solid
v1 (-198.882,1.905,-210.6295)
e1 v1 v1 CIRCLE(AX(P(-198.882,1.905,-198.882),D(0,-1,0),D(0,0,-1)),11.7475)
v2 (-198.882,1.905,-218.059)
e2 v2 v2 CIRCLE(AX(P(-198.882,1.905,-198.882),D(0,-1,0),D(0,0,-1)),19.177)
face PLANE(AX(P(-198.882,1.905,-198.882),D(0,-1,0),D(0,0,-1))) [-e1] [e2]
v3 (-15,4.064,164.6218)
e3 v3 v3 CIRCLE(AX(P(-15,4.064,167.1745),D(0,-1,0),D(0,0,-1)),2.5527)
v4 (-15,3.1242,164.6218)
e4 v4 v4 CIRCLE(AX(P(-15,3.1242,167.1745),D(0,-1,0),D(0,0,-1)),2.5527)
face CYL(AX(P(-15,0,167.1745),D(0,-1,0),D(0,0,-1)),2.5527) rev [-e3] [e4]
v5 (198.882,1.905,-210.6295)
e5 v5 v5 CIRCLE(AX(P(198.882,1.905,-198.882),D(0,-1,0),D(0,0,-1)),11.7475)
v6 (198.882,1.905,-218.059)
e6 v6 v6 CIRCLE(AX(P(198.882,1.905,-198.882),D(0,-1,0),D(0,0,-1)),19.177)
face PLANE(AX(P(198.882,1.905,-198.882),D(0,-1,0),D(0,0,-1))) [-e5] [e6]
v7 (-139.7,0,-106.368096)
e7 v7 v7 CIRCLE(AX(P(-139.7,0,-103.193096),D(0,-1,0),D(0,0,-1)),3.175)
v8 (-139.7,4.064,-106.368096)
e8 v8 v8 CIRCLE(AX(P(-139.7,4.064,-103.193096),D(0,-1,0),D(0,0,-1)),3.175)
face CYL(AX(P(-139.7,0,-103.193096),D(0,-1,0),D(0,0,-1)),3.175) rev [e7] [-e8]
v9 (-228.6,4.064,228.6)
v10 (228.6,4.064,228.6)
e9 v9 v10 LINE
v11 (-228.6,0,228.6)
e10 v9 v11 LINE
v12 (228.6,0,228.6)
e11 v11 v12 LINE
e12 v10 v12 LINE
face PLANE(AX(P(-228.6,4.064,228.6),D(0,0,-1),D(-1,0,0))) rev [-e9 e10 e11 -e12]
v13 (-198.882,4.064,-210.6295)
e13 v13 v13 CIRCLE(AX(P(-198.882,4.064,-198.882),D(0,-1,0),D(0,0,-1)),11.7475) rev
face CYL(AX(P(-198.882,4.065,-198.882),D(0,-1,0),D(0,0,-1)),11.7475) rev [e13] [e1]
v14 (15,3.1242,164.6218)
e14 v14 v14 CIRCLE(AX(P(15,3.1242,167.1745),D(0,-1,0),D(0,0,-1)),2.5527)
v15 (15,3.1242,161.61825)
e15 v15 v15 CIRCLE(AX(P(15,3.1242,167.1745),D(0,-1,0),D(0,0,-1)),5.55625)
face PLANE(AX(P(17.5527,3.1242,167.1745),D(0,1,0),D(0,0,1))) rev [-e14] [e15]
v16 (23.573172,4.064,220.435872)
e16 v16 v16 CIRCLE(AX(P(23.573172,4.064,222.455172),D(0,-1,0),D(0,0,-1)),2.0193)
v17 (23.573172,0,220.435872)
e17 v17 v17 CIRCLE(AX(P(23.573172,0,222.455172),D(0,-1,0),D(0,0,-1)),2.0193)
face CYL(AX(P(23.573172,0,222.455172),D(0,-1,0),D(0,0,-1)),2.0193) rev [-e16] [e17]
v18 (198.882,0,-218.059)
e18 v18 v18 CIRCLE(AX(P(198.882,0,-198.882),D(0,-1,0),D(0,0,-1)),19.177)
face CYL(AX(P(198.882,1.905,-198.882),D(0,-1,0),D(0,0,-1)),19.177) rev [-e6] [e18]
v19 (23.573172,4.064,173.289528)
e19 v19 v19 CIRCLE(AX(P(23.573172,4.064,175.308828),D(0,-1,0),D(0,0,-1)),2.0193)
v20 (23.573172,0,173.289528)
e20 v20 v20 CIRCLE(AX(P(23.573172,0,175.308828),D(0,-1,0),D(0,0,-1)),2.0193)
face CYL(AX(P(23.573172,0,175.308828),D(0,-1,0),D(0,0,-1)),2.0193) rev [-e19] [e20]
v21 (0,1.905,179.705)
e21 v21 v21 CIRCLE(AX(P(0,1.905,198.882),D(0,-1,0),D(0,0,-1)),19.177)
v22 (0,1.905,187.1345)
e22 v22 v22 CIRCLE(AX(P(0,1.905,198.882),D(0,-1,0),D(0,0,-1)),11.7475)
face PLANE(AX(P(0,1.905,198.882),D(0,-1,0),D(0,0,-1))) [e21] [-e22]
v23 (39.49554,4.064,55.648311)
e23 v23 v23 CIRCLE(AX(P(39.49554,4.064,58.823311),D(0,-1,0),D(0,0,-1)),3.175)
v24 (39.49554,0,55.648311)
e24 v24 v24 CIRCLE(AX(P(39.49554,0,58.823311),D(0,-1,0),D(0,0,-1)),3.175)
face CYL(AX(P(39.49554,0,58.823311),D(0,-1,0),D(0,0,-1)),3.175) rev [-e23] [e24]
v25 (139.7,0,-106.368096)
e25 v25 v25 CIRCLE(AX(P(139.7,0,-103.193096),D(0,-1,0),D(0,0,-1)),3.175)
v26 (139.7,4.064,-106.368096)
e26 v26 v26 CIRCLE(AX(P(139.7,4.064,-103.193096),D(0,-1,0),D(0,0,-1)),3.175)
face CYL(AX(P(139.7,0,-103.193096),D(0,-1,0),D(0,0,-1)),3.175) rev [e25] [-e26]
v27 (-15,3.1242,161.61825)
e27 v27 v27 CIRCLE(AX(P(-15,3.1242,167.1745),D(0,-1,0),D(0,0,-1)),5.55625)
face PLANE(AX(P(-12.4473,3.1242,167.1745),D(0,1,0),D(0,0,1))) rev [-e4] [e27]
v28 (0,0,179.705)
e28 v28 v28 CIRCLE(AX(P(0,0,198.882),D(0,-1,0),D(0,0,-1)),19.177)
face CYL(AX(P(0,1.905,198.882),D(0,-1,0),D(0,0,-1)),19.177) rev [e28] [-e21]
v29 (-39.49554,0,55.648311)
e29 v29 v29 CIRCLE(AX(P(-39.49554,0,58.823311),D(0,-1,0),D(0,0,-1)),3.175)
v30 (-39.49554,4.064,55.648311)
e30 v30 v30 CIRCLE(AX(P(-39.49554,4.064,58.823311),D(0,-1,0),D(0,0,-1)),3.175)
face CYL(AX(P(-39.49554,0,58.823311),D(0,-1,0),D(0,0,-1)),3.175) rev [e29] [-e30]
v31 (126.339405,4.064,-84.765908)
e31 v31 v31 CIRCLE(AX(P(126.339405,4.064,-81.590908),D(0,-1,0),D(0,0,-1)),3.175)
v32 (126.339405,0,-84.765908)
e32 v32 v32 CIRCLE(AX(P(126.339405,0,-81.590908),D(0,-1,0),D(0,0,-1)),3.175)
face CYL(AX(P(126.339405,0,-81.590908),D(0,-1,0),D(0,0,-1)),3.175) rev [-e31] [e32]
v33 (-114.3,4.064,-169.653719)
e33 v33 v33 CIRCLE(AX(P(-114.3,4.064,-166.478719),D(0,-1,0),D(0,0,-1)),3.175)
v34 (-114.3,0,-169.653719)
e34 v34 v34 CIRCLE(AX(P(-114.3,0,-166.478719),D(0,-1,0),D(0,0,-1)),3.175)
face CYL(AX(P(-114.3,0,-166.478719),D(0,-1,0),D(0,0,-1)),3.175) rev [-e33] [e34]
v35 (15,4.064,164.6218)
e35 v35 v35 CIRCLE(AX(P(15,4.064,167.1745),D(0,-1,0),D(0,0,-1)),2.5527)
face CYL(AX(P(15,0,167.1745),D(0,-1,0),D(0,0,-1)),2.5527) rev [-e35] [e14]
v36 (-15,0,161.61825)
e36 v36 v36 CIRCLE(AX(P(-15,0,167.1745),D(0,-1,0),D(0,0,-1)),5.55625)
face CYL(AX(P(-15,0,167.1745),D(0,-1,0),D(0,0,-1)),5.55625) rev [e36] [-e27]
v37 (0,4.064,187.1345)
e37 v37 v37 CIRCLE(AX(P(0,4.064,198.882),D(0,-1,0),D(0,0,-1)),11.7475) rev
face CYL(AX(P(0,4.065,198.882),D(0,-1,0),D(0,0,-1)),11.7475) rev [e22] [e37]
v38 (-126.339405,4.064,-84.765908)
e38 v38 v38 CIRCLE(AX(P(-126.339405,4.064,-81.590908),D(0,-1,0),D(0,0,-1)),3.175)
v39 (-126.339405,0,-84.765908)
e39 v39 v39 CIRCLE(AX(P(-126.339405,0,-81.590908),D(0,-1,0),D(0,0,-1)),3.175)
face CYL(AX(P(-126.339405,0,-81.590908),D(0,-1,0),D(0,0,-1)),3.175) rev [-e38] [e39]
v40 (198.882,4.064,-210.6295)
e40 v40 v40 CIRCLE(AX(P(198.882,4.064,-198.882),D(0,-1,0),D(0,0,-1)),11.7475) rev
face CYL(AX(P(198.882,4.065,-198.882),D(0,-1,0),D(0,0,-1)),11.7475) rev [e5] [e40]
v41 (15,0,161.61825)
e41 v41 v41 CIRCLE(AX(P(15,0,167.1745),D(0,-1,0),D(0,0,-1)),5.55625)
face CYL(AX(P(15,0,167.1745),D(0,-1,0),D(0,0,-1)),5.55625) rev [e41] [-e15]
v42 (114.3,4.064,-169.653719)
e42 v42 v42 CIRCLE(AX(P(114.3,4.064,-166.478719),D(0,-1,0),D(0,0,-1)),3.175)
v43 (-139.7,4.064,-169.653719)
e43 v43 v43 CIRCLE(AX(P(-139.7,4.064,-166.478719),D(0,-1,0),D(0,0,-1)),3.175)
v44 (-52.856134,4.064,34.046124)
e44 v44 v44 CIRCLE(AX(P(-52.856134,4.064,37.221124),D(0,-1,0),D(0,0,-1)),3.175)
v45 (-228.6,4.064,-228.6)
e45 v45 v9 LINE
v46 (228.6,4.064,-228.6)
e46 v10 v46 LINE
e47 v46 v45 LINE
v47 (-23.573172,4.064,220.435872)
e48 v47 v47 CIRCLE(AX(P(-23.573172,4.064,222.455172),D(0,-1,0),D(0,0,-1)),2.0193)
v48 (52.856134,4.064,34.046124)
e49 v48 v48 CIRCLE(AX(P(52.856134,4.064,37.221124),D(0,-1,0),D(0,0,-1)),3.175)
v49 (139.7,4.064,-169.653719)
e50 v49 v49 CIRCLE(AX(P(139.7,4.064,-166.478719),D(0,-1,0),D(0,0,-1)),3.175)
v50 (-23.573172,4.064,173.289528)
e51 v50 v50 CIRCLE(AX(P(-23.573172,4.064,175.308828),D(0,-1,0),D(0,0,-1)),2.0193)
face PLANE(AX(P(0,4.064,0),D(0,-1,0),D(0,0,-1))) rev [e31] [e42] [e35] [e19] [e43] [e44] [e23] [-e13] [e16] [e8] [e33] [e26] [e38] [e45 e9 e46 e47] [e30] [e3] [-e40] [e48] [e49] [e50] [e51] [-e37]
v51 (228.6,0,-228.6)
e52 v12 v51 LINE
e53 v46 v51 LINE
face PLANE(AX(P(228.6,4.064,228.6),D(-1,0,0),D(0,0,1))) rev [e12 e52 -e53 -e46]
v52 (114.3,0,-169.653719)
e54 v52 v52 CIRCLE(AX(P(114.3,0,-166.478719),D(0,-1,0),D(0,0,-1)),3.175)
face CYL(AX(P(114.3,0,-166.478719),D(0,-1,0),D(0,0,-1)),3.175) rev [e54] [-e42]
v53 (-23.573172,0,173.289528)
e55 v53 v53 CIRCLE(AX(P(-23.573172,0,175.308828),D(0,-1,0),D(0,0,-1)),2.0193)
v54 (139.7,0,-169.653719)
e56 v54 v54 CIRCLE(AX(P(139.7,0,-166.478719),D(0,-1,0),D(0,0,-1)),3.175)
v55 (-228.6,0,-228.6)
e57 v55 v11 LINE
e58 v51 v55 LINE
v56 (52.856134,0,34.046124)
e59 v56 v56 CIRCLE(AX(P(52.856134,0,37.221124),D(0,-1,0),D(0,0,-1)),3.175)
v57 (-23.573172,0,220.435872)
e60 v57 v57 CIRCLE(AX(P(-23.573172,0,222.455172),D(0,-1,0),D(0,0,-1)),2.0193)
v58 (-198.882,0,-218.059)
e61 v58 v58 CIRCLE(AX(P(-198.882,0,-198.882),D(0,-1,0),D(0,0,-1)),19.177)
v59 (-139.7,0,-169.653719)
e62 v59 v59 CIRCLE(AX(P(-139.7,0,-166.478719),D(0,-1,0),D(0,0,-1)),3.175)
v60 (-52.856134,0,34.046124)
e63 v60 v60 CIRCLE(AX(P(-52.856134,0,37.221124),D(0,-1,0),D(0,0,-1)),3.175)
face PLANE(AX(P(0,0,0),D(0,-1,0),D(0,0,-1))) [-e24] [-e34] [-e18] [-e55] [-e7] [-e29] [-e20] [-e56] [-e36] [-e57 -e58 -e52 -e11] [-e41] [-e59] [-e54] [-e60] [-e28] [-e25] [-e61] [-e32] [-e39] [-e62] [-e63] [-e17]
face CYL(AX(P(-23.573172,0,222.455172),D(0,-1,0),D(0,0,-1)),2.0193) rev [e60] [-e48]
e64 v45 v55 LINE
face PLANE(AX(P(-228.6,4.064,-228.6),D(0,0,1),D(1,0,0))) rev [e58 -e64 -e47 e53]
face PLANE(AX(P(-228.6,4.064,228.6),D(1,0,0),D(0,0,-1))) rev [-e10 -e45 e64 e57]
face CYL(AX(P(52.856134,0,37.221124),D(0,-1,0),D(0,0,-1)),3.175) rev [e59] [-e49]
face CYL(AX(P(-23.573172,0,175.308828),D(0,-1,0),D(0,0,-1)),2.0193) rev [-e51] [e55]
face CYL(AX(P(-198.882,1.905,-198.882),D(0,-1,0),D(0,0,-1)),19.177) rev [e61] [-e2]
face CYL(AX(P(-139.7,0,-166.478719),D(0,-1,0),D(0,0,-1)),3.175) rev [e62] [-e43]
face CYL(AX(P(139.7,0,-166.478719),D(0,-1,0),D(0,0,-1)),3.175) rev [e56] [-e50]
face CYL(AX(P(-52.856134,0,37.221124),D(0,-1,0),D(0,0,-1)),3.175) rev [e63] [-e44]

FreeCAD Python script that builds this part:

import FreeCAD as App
import Part
import Sketcher
Q = App.Units.Quantity

doc = App.newDocument("Part")
body = doc.addObject("PartDesign::Body", "Body")

# Sketch on XZ plane
sketch1 = doc.addObject("Sketcher::SketchObject", "Sketch")
body.addObject(sketch1)
sketch1.AttachmentSupport = (doc.XZ_Plane, [""])
sketch1.MapMode = "FlatFace"
sketch1.addGeometry(Part.LineSegment(App.Vector(-228.6, -228.6, 0), App.Vector(-228.6, 228.6, 0)), False)
sketch1.addGeometry(Part.LineSegment(App.Vector(-228.6, 228.6, 0), App.Vector(228.6, 228.6, 0)), False)
sketch1.addGeometry(Part.LineSegment(App.Vector(228.6, 228.6, 0), App.Vector(228.6, -228.6, 0)), False)
sketch1.addGeometry(Part.LineSegment(App.Vector(228.6, -228.6, 0), App.Vector(-228.6, -228.6, 0)), False)
sketch1.addConstraint(Sketcher.Constraint("Coincident", 0, 2, 1, 1))
sketch1.addConstraint(Sketcher.Constraint("Coincident", 1, 2, 2, 1))
sketch1.addConstraint(Sketcher.Constraint("Coincident", 2, 2, 3, 1))
sketch1.addConstraint(Sketcher.Constraint("Coincident", 3, 2, 0, 1))
sketch1.addConstraint(Sketcher.Constraint("Vertical", 0))
sketch1.addConstraint(Sketcher.Constraint("Horizontal", 1))
sketch1.addConstraint(Sketcher.Constraint("Vertical", 2))
sketch1.addConstraint(Sketcher.Constraint("Horizontal", 3))
sketch1.addConstraint(Sketcher.Constraint("Symmetric", 0, 2, 2, 2, -1, 1))
sketch1.addConstraint(Sketcher.Constraint("Equal", 3, 0))
sketch1.addConstraint(Sketcher.Constraint("DistanceX", 1, 1, 1, 2, Q("18 in")))
pad1 = doc.addObject("PartDesign::Pad", "Pad")
body.addObject(pad1)
pad1.Profile = sketch1
pad1.Length = Q("0.16 in")
pad1.Reversed = True

# Sketch on XZ plane
sketch2 = doc.addObject("Sketcher::SketchObject", "Sketch001")
body.addObject(sketch2)
sketch2.AttachmentSupport = (doc.XZ_Plane, [""])
sketch2.MapMode = "FlatFace"
sketch2.addGeometry(Part.Circle(App.Vector(0, 198.882, 0), App.Vector(0, 0, 1), 19.177), False)
sketch2.addGeometry(Part.Circle(App.Vector(-198.882, -198.882, 0), App.Vector(0, 0, 1), 19.177), False)
sketch2.addGeometry(Part.Circle(App.Vector(198.882, -198.882, 0), App.Vector(0, 0, 1), 19.177), False)
sketch2.addConstraint(Sketcher.Constraint("Equal", 0, 1))
sketch2.addConstraint(Sketcher.Constraint("Equal", 1, 2))
sketch2.addConstraint(Sketcher.Constraint("Symmetric", 1, 3, 2, 3, -2))
sketch2.addConstraint(Sketcher.Constraint("PointOnObject", 0, 3, -2))
sketch2.addConstraint(Sketcher.Constraint("Diameter", 0, Q("1.51 in")))
sketch2.addConstraint(Sketcher.Constraint("DistanceY", -1, 1, 0, 3, Q("7.83 in")))
sketch2.addConstraint(Sketcher.Constraint("DistanceX", 1, 3, -1, 1, Q("7.83 in")))
sketch2.addConstraint(Sketcher.Constraint("DistanceY", 1, 3, -1, 1, Q("7.83 in")))
pocket1 = doc.addObject("PartDesign::Pocket", "Pocket")
body.addObject(pocket1)
pocket1.Profile = sketch2
pocket1.Length = Q("0.075 in")

# Sketch on XZ plane
sketch3 = doc.addObject("Sketcher::SketchObject", "Sketch002")
body.addObject(sketch3)
sketch3.AttachmentSupport = (doc.XZ_Plane, [""])
sketch3.MapMode = "FlatFace"
sketch3.AttachmentOffset = App.Placement(App.Vector(0, 0, -0.075 * 25.4), App.Rotation())
sketch3.addGeometry(Part.Circle(App.Vector(0, 198.882, 0), App.Vector(0, 0, 1), 11.7475), False)
sketch3.addConstraint(Sketcher.Constraint("PointOnObject", 0, 3, -2))
sketch3.addConstraint(Sketcher.Constraint("Diameter", 0, Q("0.925 in")))
sketch3.addConstraint(Sketcher.Constraint("DistanceY", -1, 1, 0, 3, Q("7.83 in")))
pocket2 = doc.addObject("PartDesign::Pocket", "Pocket001")
body.addObject(pocket2)
pocket2.Profile = sketch3
pocket2.Type = "UpToFirst"

# Sketch on XZ plane
sketch4 = doc.addObject("Sketcher::SketchObject", "Sketch003")
body.addObject(sketch4)
sketch4.AttachmentSupport = (doc.XZ_Plane, [""])
sketch4.MapMode = "FlatFace"
sketch4.AttachmentOffset = App.Placement(App.Vector(0, 0, -0.075 * 25.4), App.Rotation())
sketch4.addGeometry(Part.Circle(App.Vector(-198.882, -198.882, 0), App.Vector(0, 0, 1), 11.7475), False)
sketch4.addConstraint(Sketcher.Constraint("Diameter", 0, Q("0.925 in")))
sketch4.addConstraint(Sketcher.Constraint("DistanceX", 0, 3, -1, 1, Q("7.83 in")))
sketch4.addConstraint(Sketcher.Constraint("DistanceY", 0, 3, -1, 1, Q("7.83 in")))
pocket3 = doc.addObject("PartDesign::Pocket", "Pocket002")
body.addObject(pocket3)
pocket3.Profile = sketch4
pocket3.Type = "UpToFirst"

# Sketch on XZ plane
sketch5 = doc.addObject("Sketcher::SketchObject", "Sketch004")
body.addObject(sketch5)
sketch5.AttachmentSupport = (doc.XZ_Plane, [""])
sketch5.MapMode = "FlatFace"
sketch5.AttachmentOffset = App.Placement(App.Vector(0, 0, -0.075 * 25.4), App.Rotation())
sketch5.addGeometry(Part.Circle(App.Vector(198.882, -198.882, 0), App.Vector(0, 0, 1), 11.7475), False)
sketch5.addConstraint(Sketcher.Constraint("Diameter", 0, Q("0.925 in")))
sketch5.addConstraint(Sketcher.Constraint("DistanceX", -1, 1, 0, 3, Q("7.83 in")))
sketch5.addConstraint(Sketcher.Constraint("DistanceY", 0, 3, -1, 1, Q("7.83 in")))
pocket4 = doc.addObject("PartDesign::Pocket", "Pocket003")
body.addObject(pocket4)
pocket4.Profile = sketch5
pocket4.Type = "UpToFirst"

# Sketch on XZ plane
sketch6 = doc.addObject("Sketcher::SketchObject", "Sketch005")
body.addObject(sketch6)
sketch6.AttachmentSupport = (doc.XZ_Plane, [""])
sketch6.MapMode = "FlatFace"
sketch6.addGeometry(Part.Circle(App.Vector(-23.573172, 222.455172, 0), App.Vector(0, 0, 1), 2.0193), False)
sketch6.addGeometry(Part.Circle(App.Vector(23.573172, 222.455172, 0), App.Vector(0, 0, 1), 2.0193), False)
sketch6.addConstraint(Sketcher.Constraint("Equal", 0, 1))
sketch6.addConstraint(Sketcher.Constraint("Symmetric", 0, 3, 1, 3, -2))
sketch6.addConstraint(Sketcher.Constraint("Diameter", 0, Q("0.159 in")))
sketch6.addConstraint(Sketcher.Constraint("DistanceX", 0, 3, -1, 1, Q("23.573172 mm")))
sketch6.addConstraint(Sketcher.Constraint("DistanceY", -1, 1, 0, 3, Q("222.455172 mm")))
doc.recompute()
hole = doc.addObject("PartDesign::Hole", "Hole")
body.addObject(hole)
hole.Profile = sketch6
hole.ThreadType = "None"
hole.Diameter = Q("0.159 in")
hole.DepthType = "ThroughAll"

# Sketch on XZ plane
sketch7 = doc.addObject("Sketcher::SketchObject", "Sketch006")
body.addObject(sketch7)
sketch7.AttachmentSupport = (doc.XZ_Plane, [""])
sketch7.MapMode = "FlatFace"
sketch7.addGeometry(Part.Circle(App.Vector(-23.573172, 175.308828, 0), App.Vector(0, 0, 1), 2.0193), False)
sketch7.addGeometry(Part.Circle(App.Vector(23.573172, 175.308828, 0), App.Vector(0, 0, 1), 2.0193), False)
sketch7.addConstraint(Sketcher.Constraint("Equal", 0, 1))
sketch7.addConstraint(Sketcher.Constraint("Symmetric", 0, 3, 1, 3, -2))
sketch7.addConstraint(Sketcher.Constraint("Diameter", 0, Q("0.159 in")))
sketch7.addConstraint(Sketcher.Constraint("DistanceX", 0, 3, -1, 1, Q("23.573172 mm")))
sketch7.addConstraint(Sketcher.Constraint("DistanceY", -1, 1, 0, 3, Q("175.308828 mm")))
doc.recompute()
hole2 = doc.addObject("PartDesign::Hole", "Hole001")
body.addObject(hole2)
hole2.Profile = sketch7
hole2.ThreadType = "None"
hole2.Diameter = Q("0.159 in")
hole2.DepthType = "ThroughAll"

# Sketch on XZ plane
sketch8 = doc.addObject("Sketcher::SketchObject", "Sketch007")
body.addObject(sketch8)
sketch8.AttachmentSupport = (doc.XZ_Plane, [""])
sketch8.MapMode = "FlatFace"
sketch8.addGeometry(Part.Circle(App.Vector(-15, 167.1745, 0), App.Vector(0, 0, 1), 2.5527), False)
sketch8.addGeometry(Part.Circle(App.Vector(15, 167.1745, 0), App.Vector(0, 0, 1), 2.5527), False)
sketch8.addConstraint(Sketcher.Constraint("Equal", 0, 1))
sketch8.addConstraint(Sketcher.Constraint("Symmetric", 0, 3, 1, 3, -2))
sketch8.addConstraint(Sketcher.Constraint("Diameter", 0, Q("0.201 in")))
sketch8.addConstraint(Sketcher.Constraint("DistanceX", 0, 3, -1, 1, Q("15 mm")))
sketch8.addConstraint(Sketcher.Constraint("DistanceY", -1, 1, 0, 3, Q("167.1745 mm")))
doc.recompute()
hole3 = doc.addObject("PartDesign::Hole", "Hole002")
body.addObject(hole3)
hole3.Profile = sketch8
hole3.ThreadType = "None"
hole3.Diameter = Q("0.201 in")
hole3.DepthType = "ThroughAll"
hole3.HoleCutType = "Counterbore"
hole3.HoleCutDiameter = Q("0.4375 in")
hole3.HoleCutDepth = Q("0.123 in")

# Sketch on XZ plane
sketch9 = doc.addObject("Sketcher::SketchObject", "Sketch008")
body.addObject(sketch9)
sketch9.AttachmentSupport = (doc.XZ_Plane, [""])
sketch9.MapMode = "FlatFace"
sketch9.addGeometry(Part.Circle(App.Vector(39.49554, 58.823311, 0), App.Vector(0, 0, 1), 3.175), False)
sketch9.addGeometry(Part.Circle(App.Vector(52.856134, 37.221124, 0), App.Vector(0, 0, 1), 3.175), False)
sketch9.addGeometry(Part.Circle(App.Vector(126.339405, -81.590908, 0), App.Vector(0, 0, 1), 3.175), False)
sketch9.addGeometry(Part.Circle(App.Vector(139.7, -103.193096, 0), App.Vector(0, 0, 1), 3.175), False)
sketch9.addGeometry(Part.Circle(App.Vector(139.7, -166.478719, 0), App.Vector(0, 0, 1), 3.175), False)
sketch9.addGeometry(Part.Circle(App.Vector(114.3, -166.478719, 0), App.Vector(0, 0, 1), 3.175), False)
sketch9.addGeometry(Part.Circle(App.Vector(-114.3, -166.478719, 0), App.Vector(0, 0, 1), 3.175), False)
sketch9.addGeometry(Part.Circle(App.Vector(-139.7, -166.478719, 0), App.Vector(0, 0, 1), 3.175), False)
sketch9.addGeometry(Part.Circle(App.Vector(-139.7, -103.193096, 0), App.Vector(0, 0, 1), 3.175), False)
sketch9.addGeometry(Part.Circle(App.Vector(-126.339405, -81.590908, 0), App.Vector(0, 0, 1), 3.175), False)
sketch9.addGeometry(Part.Circle(App.Vector(-52.856134, 37.221124, 0), App.Vector(0, 0, 1), 3.175), False)
sketch9.addGeometry(Part.Circle(App.Vector(-39.49554, 58.823311, 0), App.Vector(0, 0, 1), 3.175), False)
sketch9.addConstraint(Sketcher.Constraint("Equal", 0, 1))
sketch9.addConstraint(Sketcher.Constraint("Equal", 1, 2))
sketch9.addConstraint(Sketcher.Constraint("Equal", 2, 3))
sketch9.addConstraint(Sketcher.Constraint("Equal", 3, 4))
sketch9.addConstraint(Sketcher.Constraint("Equal", 4, 5))
sketch9.addConstraint(Sketcher.Constraint("Equal", 5, 6))
sketch9.addConstraint(Sketcher.Constraint("Equal", 6, 7))
sketch9.addConstraint(Sketcher.Constraint("Equal", 7, 8))
sketch9.addConstraint(Sketcher.Constraint("Equal", 8, 9))
sketch9.addConstraint(Sketcher.Constraint("Equal", 9, 10))
sketch9.addConstraint(Sketcher.Constraint("Equal", 10, 11))
sketch9.addConstraint(Sketcher.Constraint("Symmetric", 5, 3, 6, 3, -2))
sketch9.addConstraint(Sketcher.Constraint("Symmetric", 4, 3, 7, 3, -2))
sketch9.addConstraint(Sketcher.Constraint("Symmetric", 3, 3, 8, 3, -2))
sketch9.addConstraint(Sketcher.Constraint("Symmetric", 2, 3, 9, 3, -2))
sketch9.addConstraint(Sketcher.Constraint("Symmetric", 1, 3, 10, 3, -2))
sketch9.addConstraint(Sketcher.Constraint("Symmetric", 0, 3, 11, 3, -2))
sketch9.addConstraint(Sketcher.Constraint("Horizontal", 4, 3, 5, 3))
sketch9.addConstraint(Sketcher.Constraint("Vertical", 3, 3, 4, 3))
sketch9.addConstraint(Sketcher.Constraint("Diameter", 0, Q("0.25 in")))
sketch9.addConstraint(Sketcher.Constraint("DistanceX", 5, 3, 4, 3, Q("1 in")))
sketch9.addConstraint(Sketcher.Constraint("DistanceX", 6, 3, 5, 3, Q("9 in")))
sketch9.addConstraint(Sketcher.Constraint("DistanceX", -1, 1, 0, 3, Q("39.49554 mm")))
sketch9.addConstraint(Sketcher.Constraint("DistanceY", -1, 1, 0, 3, Q("58.823311 mm")))
sketch9.addConstraint(Sketcher.Constraint("DistanceY", 2, 3, -1, 1, Q("81.590908 mm")))
sketch9.addConstraint(Sketcher.Constraint("DistanceY", 4, 3, -1, 1, Q("166.478719 mm")))
sketch9.addConstraint(Sketcher.Constraint("DistanceX", 1, 3, 2, 3, Q("73.483271 mm")))
sketch9.addConstraint(Sketcher.Constraint("DistanceY", 2, 3, 1, 3, Q("118.812032 mm")))
sketch9.addConstraint(Sketcher.Constraint("DistanceY", 3, 3, 1, 3, Q("140.414219 mm")))
sketch9.addConstraint(Sketcher.Constraint("DistanceX", 9, 3, 1, 3, Q("179.19554 mm")))
doc.recompute()
hole4 = doc.addObject("PartDesign::Hole", "Hole003")
body.addObject(hole4)
hole4.Profile = sketch9
hole4.ThreadType = "None"
hole4.Diameter = Q("0.25 in")
hole4.DepthType = "ThroughAll"

doc.recompute()
